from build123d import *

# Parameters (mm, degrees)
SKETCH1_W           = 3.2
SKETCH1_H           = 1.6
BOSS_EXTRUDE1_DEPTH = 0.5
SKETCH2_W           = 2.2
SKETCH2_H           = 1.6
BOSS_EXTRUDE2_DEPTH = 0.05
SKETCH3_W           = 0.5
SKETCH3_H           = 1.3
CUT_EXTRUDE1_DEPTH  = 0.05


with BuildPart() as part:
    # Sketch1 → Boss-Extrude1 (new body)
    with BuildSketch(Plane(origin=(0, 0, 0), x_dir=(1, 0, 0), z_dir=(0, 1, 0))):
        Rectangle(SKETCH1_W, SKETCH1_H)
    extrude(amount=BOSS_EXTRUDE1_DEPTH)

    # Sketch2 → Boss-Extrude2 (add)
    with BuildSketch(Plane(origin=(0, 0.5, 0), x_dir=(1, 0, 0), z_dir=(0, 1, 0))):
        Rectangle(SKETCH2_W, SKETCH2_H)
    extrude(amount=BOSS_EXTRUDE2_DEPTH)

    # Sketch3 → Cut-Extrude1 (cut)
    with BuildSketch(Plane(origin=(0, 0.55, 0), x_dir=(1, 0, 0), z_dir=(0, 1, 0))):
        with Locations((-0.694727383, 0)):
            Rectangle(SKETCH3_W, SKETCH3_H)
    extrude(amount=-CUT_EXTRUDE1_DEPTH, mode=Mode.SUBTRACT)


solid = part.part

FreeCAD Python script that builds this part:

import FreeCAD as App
import Part
import Sketcher

V = App.Vector


def add_polygon(sketch, points):
    """Adds a closed chain of lines whose ends are joined by coincident constraints."""
    first, n = sketch.GeometryCount, len(points)
    for a, b in zip(points, points[1:] + points[:1]):
        sketch.addGeometry(Part.LineSegment(App.Vector(*a, 0), App.Vector(*b, 0)), False)
    for i in range(n):
        sketch.addConstraint(Sketcher.Constraint("Coincident", first + i, 2, first + (i + 1) % n, 1))

doc = App.newDocument("Part")
body = doc.addObject("PartDesign::Body", "Body")

# Sketch on XZ plane
sketch1 = body.newObject("Sketcher::SketchObject", "Sketch")
sketch1.AttachmentSupport = (doc.getObject("XZ_Plane"), [""])
sketch1.MapMode = "FlatFace"
add_polygon(sketch1, [(-1.6, -0.8), (-1.6, 0.8), (1.6, 0.8), (1.6, -0.8)])  # lines 0-3
sketch1.addConstraint([
    Sketcher.Constraint("Vertical", 0),
    Sketcher.Constraint("Horizontal", 1),
    Sketcher.Constraint("Vertical", 2),
    Sketcher.Constraint("Horizontal", 3),
    Sketcher.Constraint("Symmetric", 0, 2, 2, 2, -1, 1),
    Sketcher.Constraint("DistanceX", 1, 1, 1, 2, 3.2),
    Sketcher.Constraint("DistanceY", 0, 1, 0, 2, 1.6),
])
pad1 = body.newObject("PartDesign::Pad", "Pad")
pad1.Profile = sketch1
pad1.Length = 0.5
pad1.Reversed = True

# Sketch on XZ plane
sketch2 = body.newObject("Sketcher::SketchObject", "Sketch001")
sketch2.AttachmentSupport = (doc.getObject("XZ_Plane"), [""])
sketch2.MapMode = "FlatFace"
sketch2.AttachmentOffset = App.Placement(V(0, 0, -0.5), App.Rotation())
add_polygon(sketch2, [(-1.1, -0.8), (-1.1, 0.8), (1.1, 0.8), (1.1, -0.8)])  # lines 0-3
sketch2.addConstraint([
    Sketcher.Constraint("Vertical", 0),
    Sketcher.Constraint("Horizontal", 1),
    Sketcher.Constraint("Vertical", 2),
    Sketcher.Constraint("Horizontal", 3),
    Sketcher.Constraint("Symmetric", 0, 2, 2, 2, -1, 1),
    Sketcher.Constraint("DistanceX", 1, 1, 1, 2, 2.2),
    Sketcher.Constraint("DistanceY", 0, 1, 0, 2, 1.6),
])
pad2 = body.newObject("PartDesign::Pad", "Pad001")
pad2.Profile = sketch2
pad2.Length = 0.05
pad2.Reversed = True

# Sketch on XZ plane
sketch3 = body.newObject("Sketcher::SketchObject", "Sketch002")
sketch3.AttachmentSupport = (doc.getObject("XZ_Plane"), [""])
sketch3.MapMode = "FlatFace"
sketch3.AttachmentOffset = App.Placement(V(0, 0, -0.55), App.Rotation())
add_polygon(sketch3, [(-0.9, -0.7), (-0.9, 0.7), (-0.4, 0.7), (-0.4, -0.7)])  # lines 0-3
sketch3.addConstraint([
    Sketcher.Constraint("Vertical", 0),
    Sketcher.Constraint("Horizontal", 1),
    Sketcher.Constraint("Vertical", 2),
    Sketcher.Constraint("Horizontal", 3),
    Sketcher.Constraint("DistanceX", 1, 1, 1, 2, 0.5),
    Sketcher.Constraint("DistanceY", 0, 1, 0, 2, 1.3),
    Sketcher.Constraint("DistanceY", -1, 1, 0, 2, 0.65),
    Sketcher.Constraint("DistanceX", 0, 2, -1, 1, 0.944727),
])
pocket1 = body.newObject("PartDesign::Pocket", "Pocket")
pocket1.Profile = sketch3
pocket1.Length = 0.05
pocket1.Reversed = True

doc.recompute()
